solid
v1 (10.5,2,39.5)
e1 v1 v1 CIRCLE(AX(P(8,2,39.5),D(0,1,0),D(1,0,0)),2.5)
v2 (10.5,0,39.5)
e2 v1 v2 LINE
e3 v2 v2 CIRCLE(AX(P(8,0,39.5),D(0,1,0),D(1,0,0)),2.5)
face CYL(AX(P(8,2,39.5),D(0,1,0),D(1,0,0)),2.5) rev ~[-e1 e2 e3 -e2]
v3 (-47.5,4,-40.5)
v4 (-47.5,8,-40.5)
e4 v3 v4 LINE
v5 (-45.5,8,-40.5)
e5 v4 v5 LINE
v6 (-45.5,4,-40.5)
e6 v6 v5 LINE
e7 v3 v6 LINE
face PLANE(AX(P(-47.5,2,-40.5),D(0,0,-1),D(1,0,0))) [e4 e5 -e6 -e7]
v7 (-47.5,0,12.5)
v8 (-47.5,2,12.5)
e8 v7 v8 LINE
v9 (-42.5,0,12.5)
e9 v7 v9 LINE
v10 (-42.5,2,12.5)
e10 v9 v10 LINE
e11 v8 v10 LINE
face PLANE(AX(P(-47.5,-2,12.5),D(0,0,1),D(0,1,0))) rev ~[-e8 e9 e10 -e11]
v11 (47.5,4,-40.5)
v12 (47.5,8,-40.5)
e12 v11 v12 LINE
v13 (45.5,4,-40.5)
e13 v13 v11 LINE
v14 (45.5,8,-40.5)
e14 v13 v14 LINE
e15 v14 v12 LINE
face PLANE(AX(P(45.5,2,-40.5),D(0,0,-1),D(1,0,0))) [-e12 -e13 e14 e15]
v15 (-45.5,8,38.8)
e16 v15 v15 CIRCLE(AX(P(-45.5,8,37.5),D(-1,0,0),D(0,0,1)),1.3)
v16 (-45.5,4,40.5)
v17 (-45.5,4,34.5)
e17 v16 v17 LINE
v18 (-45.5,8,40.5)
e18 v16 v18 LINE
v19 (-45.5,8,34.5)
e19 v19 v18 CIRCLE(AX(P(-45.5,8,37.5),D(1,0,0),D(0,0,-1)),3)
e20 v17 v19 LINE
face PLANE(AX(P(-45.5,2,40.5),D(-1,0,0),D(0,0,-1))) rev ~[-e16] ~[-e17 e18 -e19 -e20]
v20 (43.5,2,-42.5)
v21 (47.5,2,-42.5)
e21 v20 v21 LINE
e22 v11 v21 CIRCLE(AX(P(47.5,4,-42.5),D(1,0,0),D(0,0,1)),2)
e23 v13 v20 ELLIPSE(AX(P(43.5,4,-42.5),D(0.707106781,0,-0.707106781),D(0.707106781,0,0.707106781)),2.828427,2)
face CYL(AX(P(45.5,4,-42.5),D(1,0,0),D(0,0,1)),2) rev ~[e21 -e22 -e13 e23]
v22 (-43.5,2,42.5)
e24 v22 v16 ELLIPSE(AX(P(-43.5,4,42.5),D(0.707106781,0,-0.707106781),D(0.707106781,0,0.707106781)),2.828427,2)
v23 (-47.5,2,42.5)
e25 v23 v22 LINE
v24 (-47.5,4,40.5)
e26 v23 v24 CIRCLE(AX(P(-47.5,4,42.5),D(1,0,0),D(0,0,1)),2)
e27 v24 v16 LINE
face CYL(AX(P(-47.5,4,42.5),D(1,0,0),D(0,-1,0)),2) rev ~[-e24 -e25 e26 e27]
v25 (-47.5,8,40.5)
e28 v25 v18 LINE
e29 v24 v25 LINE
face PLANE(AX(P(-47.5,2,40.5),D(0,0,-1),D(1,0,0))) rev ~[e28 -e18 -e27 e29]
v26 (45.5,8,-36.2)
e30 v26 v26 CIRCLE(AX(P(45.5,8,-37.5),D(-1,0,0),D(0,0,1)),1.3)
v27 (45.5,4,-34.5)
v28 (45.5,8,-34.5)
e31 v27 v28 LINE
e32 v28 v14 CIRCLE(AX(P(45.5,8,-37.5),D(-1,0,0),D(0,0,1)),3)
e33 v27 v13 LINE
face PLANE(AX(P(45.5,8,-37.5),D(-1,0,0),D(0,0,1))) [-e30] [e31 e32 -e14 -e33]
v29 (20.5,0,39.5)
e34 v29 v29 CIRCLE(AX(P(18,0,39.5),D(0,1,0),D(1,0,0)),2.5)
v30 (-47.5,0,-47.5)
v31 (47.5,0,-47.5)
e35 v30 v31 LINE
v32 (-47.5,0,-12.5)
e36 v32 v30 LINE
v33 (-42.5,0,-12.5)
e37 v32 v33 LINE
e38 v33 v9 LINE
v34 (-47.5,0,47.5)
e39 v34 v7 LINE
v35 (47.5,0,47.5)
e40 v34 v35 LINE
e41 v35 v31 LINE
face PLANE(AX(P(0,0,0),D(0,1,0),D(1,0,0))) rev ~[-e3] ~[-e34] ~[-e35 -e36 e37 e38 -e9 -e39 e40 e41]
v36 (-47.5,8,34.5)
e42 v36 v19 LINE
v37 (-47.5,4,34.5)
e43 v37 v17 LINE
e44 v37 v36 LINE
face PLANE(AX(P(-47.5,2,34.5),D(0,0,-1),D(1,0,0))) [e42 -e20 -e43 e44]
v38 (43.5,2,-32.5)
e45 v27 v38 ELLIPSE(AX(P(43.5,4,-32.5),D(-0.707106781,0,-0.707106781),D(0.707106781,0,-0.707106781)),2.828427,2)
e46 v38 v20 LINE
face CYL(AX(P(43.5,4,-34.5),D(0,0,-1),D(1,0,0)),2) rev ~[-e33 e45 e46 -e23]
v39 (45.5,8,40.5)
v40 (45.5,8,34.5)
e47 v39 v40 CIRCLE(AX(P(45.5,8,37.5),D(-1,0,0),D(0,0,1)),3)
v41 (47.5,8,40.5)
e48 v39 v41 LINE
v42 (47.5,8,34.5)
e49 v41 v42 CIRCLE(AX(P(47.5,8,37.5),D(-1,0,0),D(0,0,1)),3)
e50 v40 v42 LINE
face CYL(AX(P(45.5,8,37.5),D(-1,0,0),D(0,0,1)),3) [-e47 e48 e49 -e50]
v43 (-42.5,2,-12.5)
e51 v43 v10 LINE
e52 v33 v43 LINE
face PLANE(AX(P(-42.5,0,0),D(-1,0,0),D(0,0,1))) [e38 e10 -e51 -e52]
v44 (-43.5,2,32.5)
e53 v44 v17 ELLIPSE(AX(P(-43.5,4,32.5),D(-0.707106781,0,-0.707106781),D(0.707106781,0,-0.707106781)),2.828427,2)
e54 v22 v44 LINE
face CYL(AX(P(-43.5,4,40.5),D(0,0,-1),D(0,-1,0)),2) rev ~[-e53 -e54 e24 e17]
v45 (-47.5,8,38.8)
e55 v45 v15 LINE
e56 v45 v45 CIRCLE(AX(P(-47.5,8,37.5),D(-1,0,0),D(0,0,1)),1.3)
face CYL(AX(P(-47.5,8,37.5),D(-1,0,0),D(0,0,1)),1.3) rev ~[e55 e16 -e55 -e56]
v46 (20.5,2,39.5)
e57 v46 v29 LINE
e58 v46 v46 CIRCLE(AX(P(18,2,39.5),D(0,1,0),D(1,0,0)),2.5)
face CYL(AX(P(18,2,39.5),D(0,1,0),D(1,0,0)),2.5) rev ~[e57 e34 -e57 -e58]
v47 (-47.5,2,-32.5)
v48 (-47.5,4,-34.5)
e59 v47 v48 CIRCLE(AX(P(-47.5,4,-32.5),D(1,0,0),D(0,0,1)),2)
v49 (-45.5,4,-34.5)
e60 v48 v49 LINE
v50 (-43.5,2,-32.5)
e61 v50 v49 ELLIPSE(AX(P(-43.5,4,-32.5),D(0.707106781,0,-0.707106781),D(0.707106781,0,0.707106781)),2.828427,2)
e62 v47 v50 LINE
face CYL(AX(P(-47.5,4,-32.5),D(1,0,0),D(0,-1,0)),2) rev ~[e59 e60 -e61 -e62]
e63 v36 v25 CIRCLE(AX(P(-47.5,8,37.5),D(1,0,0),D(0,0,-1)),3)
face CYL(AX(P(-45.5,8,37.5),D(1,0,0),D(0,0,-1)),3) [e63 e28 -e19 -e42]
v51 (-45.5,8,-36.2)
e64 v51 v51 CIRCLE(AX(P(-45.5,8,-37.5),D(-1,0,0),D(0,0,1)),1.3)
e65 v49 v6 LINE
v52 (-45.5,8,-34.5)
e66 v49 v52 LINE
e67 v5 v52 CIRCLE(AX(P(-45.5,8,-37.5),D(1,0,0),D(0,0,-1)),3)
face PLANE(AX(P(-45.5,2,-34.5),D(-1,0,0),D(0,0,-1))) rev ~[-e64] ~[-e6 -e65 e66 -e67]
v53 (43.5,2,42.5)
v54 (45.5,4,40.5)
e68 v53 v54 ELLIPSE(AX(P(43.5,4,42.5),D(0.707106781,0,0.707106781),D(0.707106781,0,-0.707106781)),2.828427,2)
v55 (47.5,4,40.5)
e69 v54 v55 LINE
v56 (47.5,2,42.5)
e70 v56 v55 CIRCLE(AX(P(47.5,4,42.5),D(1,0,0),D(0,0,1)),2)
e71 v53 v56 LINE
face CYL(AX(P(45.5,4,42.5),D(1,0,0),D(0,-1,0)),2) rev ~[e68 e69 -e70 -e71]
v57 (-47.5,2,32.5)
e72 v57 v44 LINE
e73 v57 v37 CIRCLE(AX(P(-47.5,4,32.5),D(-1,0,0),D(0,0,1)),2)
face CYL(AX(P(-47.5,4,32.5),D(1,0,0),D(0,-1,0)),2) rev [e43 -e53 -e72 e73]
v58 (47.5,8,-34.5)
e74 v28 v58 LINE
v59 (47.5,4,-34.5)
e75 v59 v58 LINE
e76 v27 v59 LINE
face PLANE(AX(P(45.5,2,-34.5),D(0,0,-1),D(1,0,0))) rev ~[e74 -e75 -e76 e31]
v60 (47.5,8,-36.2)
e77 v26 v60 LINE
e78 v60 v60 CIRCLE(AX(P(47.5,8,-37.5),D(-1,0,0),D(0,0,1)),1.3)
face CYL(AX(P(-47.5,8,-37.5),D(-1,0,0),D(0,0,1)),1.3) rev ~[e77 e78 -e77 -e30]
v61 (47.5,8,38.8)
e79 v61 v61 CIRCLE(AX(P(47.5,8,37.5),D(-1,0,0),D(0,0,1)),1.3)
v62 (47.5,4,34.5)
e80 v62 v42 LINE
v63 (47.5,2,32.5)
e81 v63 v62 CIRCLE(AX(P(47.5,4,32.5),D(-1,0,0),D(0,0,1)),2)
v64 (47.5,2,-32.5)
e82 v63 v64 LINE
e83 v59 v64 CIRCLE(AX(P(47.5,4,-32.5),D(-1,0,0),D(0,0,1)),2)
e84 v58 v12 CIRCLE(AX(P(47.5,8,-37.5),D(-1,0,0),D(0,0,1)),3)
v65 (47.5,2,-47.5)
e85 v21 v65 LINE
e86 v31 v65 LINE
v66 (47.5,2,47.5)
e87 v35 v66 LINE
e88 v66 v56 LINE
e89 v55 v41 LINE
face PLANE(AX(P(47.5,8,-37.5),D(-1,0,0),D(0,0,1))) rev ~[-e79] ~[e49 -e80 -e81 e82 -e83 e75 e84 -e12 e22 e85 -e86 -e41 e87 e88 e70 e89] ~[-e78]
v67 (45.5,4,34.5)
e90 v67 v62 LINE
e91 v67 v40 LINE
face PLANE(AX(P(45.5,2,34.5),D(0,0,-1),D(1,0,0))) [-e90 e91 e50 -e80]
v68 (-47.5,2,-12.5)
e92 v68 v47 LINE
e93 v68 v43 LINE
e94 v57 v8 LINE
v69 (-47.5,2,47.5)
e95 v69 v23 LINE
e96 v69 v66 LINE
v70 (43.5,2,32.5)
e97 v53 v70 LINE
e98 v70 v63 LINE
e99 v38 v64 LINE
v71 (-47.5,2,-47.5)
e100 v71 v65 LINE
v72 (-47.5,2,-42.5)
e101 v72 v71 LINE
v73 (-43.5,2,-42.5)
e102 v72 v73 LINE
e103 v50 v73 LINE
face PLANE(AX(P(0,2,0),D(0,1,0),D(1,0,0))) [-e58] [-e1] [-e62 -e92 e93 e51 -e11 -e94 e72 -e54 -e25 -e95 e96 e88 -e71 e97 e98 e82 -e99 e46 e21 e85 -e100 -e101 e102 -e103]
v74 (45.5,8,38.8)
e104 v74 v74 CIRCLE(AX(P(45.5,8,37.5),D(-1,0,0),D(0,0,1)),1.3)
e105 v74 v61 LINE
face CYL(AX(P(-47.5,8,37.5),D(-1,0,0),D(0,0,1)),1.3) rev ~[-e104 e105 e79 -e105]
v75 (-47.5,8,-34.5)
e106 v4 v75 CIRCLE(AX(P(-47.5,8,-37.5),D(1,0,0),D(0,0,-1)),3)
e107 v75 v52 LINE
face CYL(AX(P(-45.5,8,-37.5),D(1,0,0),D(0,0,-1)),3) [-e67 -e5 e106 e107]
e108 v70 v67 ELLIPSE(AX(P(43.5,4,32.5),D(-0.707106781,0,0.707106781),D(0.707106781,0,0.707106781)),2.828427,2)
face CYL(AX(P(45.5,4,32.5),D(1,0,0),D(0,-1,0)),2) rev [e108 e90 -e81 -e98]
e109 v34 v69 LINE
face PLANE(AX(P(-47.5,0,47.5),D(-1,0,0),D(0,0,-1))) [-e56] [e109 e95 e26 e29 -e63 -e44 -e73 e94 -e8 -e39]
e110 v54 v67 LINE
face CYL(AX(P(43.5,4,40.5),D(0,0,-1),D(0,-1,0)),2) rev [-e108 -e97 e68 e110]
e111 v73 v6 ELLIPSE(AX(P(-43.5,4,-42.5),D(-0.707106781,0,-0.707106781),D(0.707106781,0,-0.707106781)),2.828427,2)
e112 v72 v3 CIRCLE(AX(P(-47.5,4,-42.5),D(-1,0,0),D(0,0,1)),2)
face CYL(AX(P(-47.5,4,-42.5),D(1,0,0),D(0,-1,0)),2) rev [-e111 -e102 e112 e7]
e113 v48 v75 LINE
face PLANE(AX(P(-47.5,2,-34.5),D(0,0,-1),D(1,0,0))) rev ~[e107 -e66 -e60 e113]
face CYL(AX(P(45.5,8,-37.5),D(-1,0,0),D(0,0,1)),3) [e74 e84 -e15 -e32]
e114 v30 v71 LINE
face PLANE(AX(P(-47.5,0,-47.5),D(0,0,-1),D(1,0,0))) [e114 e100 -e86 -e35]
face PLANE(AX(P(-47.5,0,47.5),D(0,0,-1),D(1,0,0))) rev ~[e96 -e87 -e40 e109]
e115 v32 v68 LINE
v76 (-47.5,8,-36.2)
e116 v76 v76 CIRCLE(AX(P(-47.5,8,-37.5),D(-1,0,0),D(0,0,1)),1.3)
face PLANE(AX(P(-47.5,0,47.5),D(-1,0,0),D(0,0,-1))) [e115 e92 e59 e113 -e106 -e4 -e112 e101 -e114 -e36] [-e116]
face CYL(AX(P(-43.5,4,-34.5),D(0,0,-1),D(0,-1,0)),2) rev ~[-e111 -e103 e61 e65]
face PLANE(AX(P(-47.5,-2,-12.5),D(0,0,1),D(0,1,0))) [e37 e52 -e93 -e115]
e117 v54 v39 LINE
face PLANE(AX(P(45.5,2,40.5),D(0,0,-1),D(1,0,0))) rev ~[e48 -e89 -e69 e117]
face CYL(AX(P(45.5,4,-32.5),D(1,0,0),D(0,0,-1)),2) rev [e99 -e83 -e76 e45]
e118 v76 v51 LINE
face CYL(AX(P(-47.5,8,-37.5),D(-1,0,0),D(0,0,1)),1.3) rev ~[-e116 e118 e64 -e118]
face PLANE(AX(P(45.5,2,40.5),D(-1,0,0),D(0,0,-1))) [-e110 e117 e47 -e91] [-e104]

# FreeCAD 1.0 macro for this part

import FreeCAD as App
import Part
import Sketcher
from FreeCAD import Vector


def edges_at(feature, points):
    """Names of the edges that pass closest to the given points."""
    edges = feature.Shape.Edges
    near = lambda p: min(range(len(edges)), key=lambda i: edges[i].distToShape(Part.Vertex(*p))[0])
    return sorted({f"Edge{near(p) + 1}" for p in points})


def add_polygon(sketch, points):
    """Adds a closed chain of lines whose ends are joined by coincident constraints."""
    first, n = sketch.GeometryCount, len(points)
    for a, b in zip(points, points[1:] + points[:1]):
        sketch.addGeometry(Part.LineSegment(App.Vector(*a, 0), App.Vector(*b, 0)), False)
    for i in range(n):
        sketch.addConstraint(Sketcher.Constraint("Coincident", first + i, 2, first + (i + 1) % n, 1))

doc = App.newDocument("Part")
body = doc.addObject("PartDesign::Body", "Body")

# Sketch on XZ plane
sketch1 = body.newObject("Sketcher::SketchObject", "Sketch")
sketch1.AttachmentSupport = (doc.getObject("XZ_Plane"), [""])
sketch1.MapMode = "FlatFace"
add_polygon(sketch1, [(-48, -48), (-48, 48), (48, 48), (48, -48)])  # lines 0-3
sketch1.addConstraint(Sketcher.Constraint("Vertical", 0))
sketch1.addConstraint(Sketcher.Constraint("Horizontal", 1))
sketch1.addConstraint(Sketcher.Constraint("Vertical", 2))
sketch1.addConstraint(Sketcher.Constraint("Horizontal", 3))
sketch1.addConstraint(Sketcher.Constraint("Symmetric", 0, 2, 2, 2, -1, 1))
sketch1.addConstraint(Sketcher.Constraint("Equal", 3, 0))
sketch1.addConstraint(Sketcher.Constraint("DistanceX", 1, 1, 1, 2, 95.0))
pad1 = body.newObject("PartDesign::Pad", "Pad")
pad1.Profile = sketch1
pad1.Length = 2
pad1.Reversed = True

# Sketch on XZ plane
sketch2 = body.newObject("Sketcher::SketchObject", "Sketch001")
sketch2.AttachmentSupport = (doc.getObject("XZ_Plane"), [""])
sketch2.MapMode = "FlatFace"
sketch2.AttachmentOffset = App.Placement(Vector(0, 0, -2), App.Rotation())
add_polygon(sketch2, [(-47.5, 34.5), (-47.5, 40.5), (-45.5, 40.5), (-45.5, 34.5)])  # lines 0-3
add_polygon(sketch2, [(-47.5, -40.5), (-47.5, -34.5), (-45.5, -34.5), (-45.5, -40.5)])  # lines 4-7
add_polygon(sketch2, [(45.5, 34.5), (45.5, 40.5), (47.5, 40.5), (47.5, 34.5)])  # lines 8-11
add_polygon(sketch2, [(45.5, -40.5), (45.5, -34.5), (47.5, -34.5), (47.5, -40.5)])  # lines 12-15
sketch2.addConstraint(Sketcher.Constraint("Vertical", 0))
sketch2.addConstraint(Sketcher.Constraint("Horizontal", 1))
sketch2.addConstraint(Sketcher.Constraint("Vertical", 2))
sketch2.addConstraint(Sketcher.Constraint("Horizontal", 3))
sketch2.addConstraint(Sketcher.Constraint("Vertical", 4))
sketch2.addConstraint(Sketcher.Constraint("Horizontal", 5))
sketch2.addConstraint(Sketcher.Constraint("Vertical", 6))
sketch2.addConstraint(Sketcher.Constraint("Horizontal", 7))
sketch2.addConstraint(Sketcher.Constraint("Vertical", 8))
sketch2.addConstraint(Sketcher.Constraint("Horizontal", 9))
sketch2.addConstraint(Sketcher.Constraint("Vertical", 10))
sketch2.addConstraint(Sketcher.Constraint("Horizontal", 11))
sketch2.addConstraint(Sketcher.Constraint("Vertical", 12))
sketch2.addConstraint(Sketcher.Constraint("Horizontal", 13))
sketch2.addConstraint(Sketcher.Constraint("Vertical", 14))
sketch2.addConstraint(Sketcher.Constraint("Horizontal", 15))
sketch2.addConstraint(Sketcher.Constraint("Symmetric", 6, 2, 8, 2, -1, 1))
sketch2.addConstraint(Sketcher.Constraint("Symmetric", 4, 2, 10, 2, -1, 1))
sketch2.addConstraint(Sketcher.Constraint("Symmetric", 2, 2, 12, 2, -1, 1))
sketch2.addConstraint(Sketcher.Constraint("Symmetric", 0, 2, 14, 2, -1, 1))
sketch2.addConstraint(Sketcher.Constraint("Symmetric", 1, 2, 8, 2, -2))
sketch2.addConstraint(Sketcher.Constraint("Symmetric", 3, 2, 10, 2, -2))
sketch2.addConstraint(Sketcher.Constraint("DistanceX", 1, 1, 1, 2, 2.0))
sketch2.addConstraint(Sketcher.Constraint("DistanceY", 0, 1, 0, 2, 6.0))
sketch2.addConstraint(Sketcher.Constraint("DistanceY", 4, 2, 3, 2, 69.0))
sketch2.addConstraint(Sketcher.Constraint("DistanceX", 1, 2, 8, 2, 91.0))
pad2 = body.newObject("PartDesign::Pad", "Pad001")
pad2.Profile = sketch2
pad2.Length = 6
pad2.Reversed = True

# Sketch on YZ plane
sketch3 = body.newObject("Sketcher::SketchObject", "Sketch002")
sketch3.AttachmentSupport = (doc.getObject("YZ_Plane"), [""])
sketch3.MapMode = "FlatFace"
sketch3.AttachmentOffset = App.Placement(Vector(0, 0, -45.5), App.Rotation())
sketch3.addGeometry(Part.Circle(Vector(8, 37.5, 0), Vector(0, 0, 1), 3), False)
sketch3.addGeometry(Part.Circle(Vector(8, -37.5, 0), Vector(0, 0, 1), 3), False)
sketch3.addConstraint(Sketcher.Constraint("Equal", 0, 1))
sketch3.addConstraint(Sketcher.Constraint("Symmetric", 0, 3, 1, 3, -1))
sketch3.addConstraint(Sketcher.Constraint("Diameter", 0, 6.0))
sketch3.addConstraint(Sketcher.Constraint("DistanceX", -1, 1, 0, 3, 8.0))
sketch3.addConstraint(Sketcher.Constraint("DistanceY", 1, 3, 0, 3, 75.0))
pad3 = body.newObject("PartDesign::Pad", "Pad002")
pad3.Profile = sketch3
pad3.Length = 2
pad3.Reversed = True

# Sketch on YZ plane
sketch4 = body.newObject("Sketcher::SketchObject", "Sketch003")
sketch4.AttachmentSupport = (doc.getObject("YZ_Plane"), [""])
sketch4.MapMode = "FlatFace"
sketch4.AttachmentOffset = App.Placement(Vector(0, 0, 45.5), App.Rotation())
sketch4.addGeometry(Part.Circle(Vector(8, -37.5, 0), Vector(0, 0, 1), 3), False)
sketch4.addGeometry(Part.Circle(Vector(8, 37.5, 0), Vector(0, 0, 1), 3), False)
sketch4.addConstraint(Sketcher.Constraint("Equal", 0, 1))
sketch4.addConstraint(Sketcher.Constraint("Symmetric", 0, 3, 1, 3, -1))
sketch4.addConstraint(Sketcher.Constraint("Diameter", 0, 6.0))
sketch4.addConstraint(Sketcher.Constraint("DistanceX", -1, 1, 0, 3, 8.0))
sketch4.addConstraint(Sketcher.Constraint("DistanceY", 0, 3, 1, 3, 75.0))
pad4 = body.newObject("PartDesign::Pad", "Pad003")
pad4.Profile = sketch4
pad4.Length = 2

# Sketch on YZ plane
sketch5 = body.newObject("Sketcher::SketchObject", "Sketch004")
sketch5.AttachmentSupport = (doc.getObject("YZ_Plane"), [""])
sketch5.MapMode = "FlatFace"
sketch5.AttachmentOffset = App.Placement(Vector(0, 0, -47.5), App.Rotation())
sketch5.addGeometry(Part.Circle(Vector(8, -37.5, 0), Vector(0, 0, 1), 1.3), False)
sketch5.addGeometry(Part.Circle(Vector(8, 37.5, 0), Vector(0, 0, 1), 1.3), False)
sketch5.addConstraint(Sketcher.Constraint("Equal", 0, 1))
sketch5.addConstraint(Sketcher.Constraint("Symmetric", 0, 3, 1, 3, -1))
sketch5.addConstraint(Sketcher.Constraint("Diameter", 0, 2.6))
sketch5.addConstraint(Sketcher.Constraint("DistanceX", -1, 1, 0, 3, 8.0))
sketch5.addConstraint(Sketcher.Constraint("DistanceY", 0, 3, 1, 3, 75.0))
pocket1 = body.newObject("PartDesign::Pocket", "Pocket")
pocket1.Profile = sketch5
pocket1.Type = "ThroughAll"
pocket1.Reversed = True
doc.recompute()

fillet = body.newObject("PartDesign::Fillet", "Fillet")
fillet.Base = (pocket1, edges_at(pocket1, [
    (-46.5, 2, 40.5),
    (-45.5, 2, 37.5),
    (-46.5, 2, 34.5),
    (-46.5, 2, -34.5),
    (-45.5, 2, -37.5),
    (-46.5, 2, -40.5),
    (46.5, 2, 34.5),
    (45.5, 2, 37.5),
    (46.5, 2, 40.5),
    (46.5, 2, -40.5),
    (45.5, 2, -37.5),
    (46.5, 2, -34.5),
]))
fillet.Radius = 2

# Sketch on YZ plane
sketch6 = body.newObject("Sketcher::SketchObject", "Sketch005")
sketch6.AttachmentSupport = (doc.getObject("YZ_Plane"), [""])
sketch6.MapMode = "FlatFace"
sketch6.AttachmentOffset = App.Placement(Vector(0, 0, -47.5), App.Rotation())
add_polygon(sketch6, [(2, -12.5), (-2, -12.5), (-2, 12.5), (2, 12.5)])  # lines 0-3
sketch6.addConstraint(Sketcher.Constraint("Horizontal", 0))
sketch6.addConstraint(Sketcher.Constraint("Vertical", 1))
sketch6.addConstraint(Sketcher.Constraint("Horizontal", 2))
sketch6.addConstraint(Sketcher.Constraint("Vertical", 3))
sketch6.addConstraint(Sketcher.Constraint("Symmetric", 0, 2, 2, 2, -1, 1))
sketch6.addConstraint(Sketcher.Constraint("DistanceX", 0, 2, 0, 1, 4.0))
sketch6.addConstraint(Sketcher.Constraint("DistanceY", 1, 1, 1, 2, 25.0))
pocket2 = body.newObject("PartDesign::Pocket", "Pocket001")
pocket2.Profile = sketch6
pocket2.Length = 5
pocket2.Reversed = True

# Sketch on XZ plane
sketch7 = body.newObject("Sketcher::SketchObject", "Sketch006")
sketch7.AttachmentSupport = (doc.getObject("XZ_Plane"), [""])
sketch7.MapMode = "FlatFace"
sketch7.AttachmentOffset = App.Placement(Vector(0, 0, -2), App.Rotation())
sketch7.addGeometry(Part.Circle(Vector(18, 39.5, 0), Vector(0, 0, 1), 2.5), False)
sketch7.addGeometry(Part.Circle(Vector(8, 39.5, 0), Vector(0, 0, 1), 2.5), False)
sketch7.addConstraint(Sketcher.Constraint("Equal", 0, 1))
sketch7.addConstraint(Sketcher.Constraint("Horizontal", 0, 3, 1, 3))
sketch7.addConstraint(Sketcher.Constraint("Diameter", 0, 5.0))
sketch7.addConstraint(Sketcher.Constraint("DistanceX", -1, 1, 0, 3, 18.0))
sketch7.addConstraint(Sketcher.Constraint("DistanceX", -1, 1, 1, 3, 8.0))
sketch7.addConstraint(Sketcher.Constraint("DistanceY", -1, 1, 0, 3, 39.5))
pocket3 = body.newObject("PartDesign::Pocket", "Pocket002")
pocket3.Profile = sketch7
pocket3.Length = 2
pocket3.Reversed = True

doc.recompute()
